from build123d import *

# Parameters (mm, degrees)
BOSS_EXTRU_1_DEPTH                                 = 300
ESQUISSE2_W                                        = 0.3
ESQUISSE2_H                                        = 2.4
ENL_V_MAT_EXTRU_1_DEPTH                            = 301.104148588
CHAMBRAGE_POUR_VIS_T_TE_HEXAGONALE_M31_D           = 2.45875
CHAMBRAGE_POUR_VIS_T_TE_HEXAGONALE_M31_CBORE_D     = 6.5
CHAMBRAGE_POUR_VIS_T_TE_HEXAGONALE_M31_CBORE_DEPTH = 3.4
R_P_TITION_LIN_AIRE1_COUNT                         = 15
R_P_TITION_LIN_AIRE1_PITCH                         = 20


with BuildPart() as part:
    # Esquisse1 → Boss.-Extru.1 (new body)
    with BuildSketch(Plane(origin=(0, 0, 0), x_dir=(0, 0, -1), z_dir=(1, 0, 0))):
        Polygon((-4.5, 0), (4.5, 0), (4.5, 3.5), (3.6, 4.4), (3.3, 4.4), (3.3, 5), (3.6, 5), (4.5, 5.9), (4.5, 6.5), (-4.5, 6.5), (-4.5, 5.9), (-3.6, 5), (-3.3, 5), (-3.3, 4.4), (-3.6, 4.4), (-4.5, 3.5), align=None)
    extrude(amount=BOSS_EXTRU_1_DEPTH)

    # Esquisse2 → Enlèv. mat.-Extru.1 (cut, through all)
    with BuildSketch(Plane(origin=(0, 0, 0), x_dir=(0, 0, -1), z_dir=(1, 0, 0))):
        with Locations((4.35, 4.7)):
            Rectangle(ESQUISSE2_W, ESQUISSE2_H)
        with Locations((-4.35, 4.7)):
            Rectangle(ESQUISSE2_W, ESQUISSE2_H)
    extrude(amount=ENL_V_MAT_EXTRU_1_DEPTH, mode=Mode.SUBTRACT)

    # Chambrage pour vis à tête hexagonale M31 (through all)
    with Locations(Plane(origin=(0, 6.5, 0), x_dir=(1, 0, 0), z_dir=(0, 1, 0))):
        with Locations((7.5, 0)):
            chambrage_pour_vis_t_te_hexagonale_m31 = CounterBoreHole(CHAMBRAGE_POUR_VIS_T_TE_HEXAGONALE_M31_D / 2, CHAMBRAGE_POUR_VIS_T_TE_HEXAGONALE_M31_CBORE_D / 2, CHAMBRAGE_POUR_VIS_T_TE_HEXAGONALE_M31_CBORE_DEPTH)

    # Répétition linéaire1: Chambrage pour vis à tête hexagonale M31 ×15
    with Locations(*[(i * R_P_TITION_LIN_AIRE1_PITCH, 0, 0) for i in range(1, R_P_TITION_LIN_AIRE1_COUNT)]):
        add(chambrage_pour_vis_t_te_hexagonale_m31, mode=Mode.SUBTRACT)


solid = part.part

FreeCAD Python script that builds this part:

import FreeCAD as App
import Part
import Sketcher
from FreeCAD import Vector
Q = App.Units.Quantity

doc = App.newDocument("Part")
params = doc.addObject("Spreadsheet::Sheet", "Params")
for row, (alias, value) in enumerate([
    ("sketch1_height", "9 mm"),
    ("sketch1_width", "3.5 mm"),
    ("sketch1_width2", "0.6 mm"),
    ("sketch1_height2", "0.3 mm"),
    ("pad1_length", "300 mm"),
    ("sketch2_width", "2.4 mm"),
    ("sketch2_height", "0.3 mm"),
    ("hole_diameter", "2.45875 mm"),
    ("hole_cbore_diameter", "6.5 mm"),
    ("hole_cbore_depth", "3.4 mm"),
    ("linearpattern_pitch", "20 mm"),
], start=1):
    params.set(f"A{row}", alias)
    params.set(f"B{row}", "=" + value)
    params.setAlias(f"B{row}", alias)

body = doc.addObject("PartDesign::Body", "Body")

sketch1 = doc.addObject("Sketcher::SketchObject", "Sketch")
body.addObject(sketch1)
sketch1.AttachmentSupport = (doc.YZ_Plane, [""])
sketch1.MapMode = "FlatFace"
sketch1.addGeometry(Part.LineSegment(Vector(0, 4.5, 0), Vector(0, -4.5, 0)), False)
sketch1.addGeometry(Part.LineSegment(Vector(0, -4.5, 0), Vector(3.5, -4.5, 0)), False)
sketch1.addGeometry(Part.LineSegment(Vector(3.5, -4.5, 0), Vector(4.4, -3.6, 0)), False)
sketch1.addGeometry(Part.LineSegment(Vector(4.4, -3.6, 0), Vector(4.4, -3.3, 0)), False)
sketch1.addGeometry(Part.LineSegment(Vector(4.4, -3.3, 0), Vector(5, -3.3, 0)), False)
sketch1.addGeometry(Part.LineSegment(Vector(5, -3.3, 0), Vector(5, -3.6, 0)), False)
sketch1.addGeometry(Part.LineSegment(Vector(5, -3.6, 0), Vector(5.9, -4.5, 0)), False)
sketch1.addGeometry(Part.LineSegment(Vector(5.9, -4.5, 0), Vector(6.5, -4.5, 0)), False)
sketch1.addGeometry(Part.LineSegment(Vector(6.5, -4.5, 0), Vector(6.5, 4.5, 0)), False)
sketch1.addGeometry(Part.LineSegment(Vector(6.5, 4.5, 0), Vector(5.9, 4.5, 0)), False)
sketch1.addGeometry(Part.LineSegment(Vector(5.9, 4.5, 0), Vector(5, 3.6, 0)), False)
sketch1.addGeometry(Part.LineSegment(Vector(5, 3.6, 0), Vector(5, 3.3, 0)), False)
sketch1.addGeometry(Part.LineSegment(Vector(5, 3.3, 0), Vector(4.4, 3.3, 0)), False)
sketch1.addGeometry(Part.LineSegment(Vector(4.4, 3.3, 0), Vector(4.4, 3.6, 0)), False)
sketch1.addGeometry(Part.LineSegment(Vector(4.4, 3.6, 0), Vector(3.5, 4.5, 0)), False)
sketch1.addGeometry(Part.LineSegment(Vector(3.5, 4.5, 0), Vector(0, 4.5, 0)), False)
sketch1.addConstraint(Sketcher.Constraint("Coincident", 0, 2, 1, 1))
sketch1.addConstraint(Sketcher.Constraint("Coincident", 1, 2, 2, 1))
sketch1.addConstraint(Sketcher.Constraint("Coincident", 2, 2, 3, 1))
sketch1.addConstraint(Sketcher.Constraint("Coincident", 3, 2, 4, 1))
sketch1.addConstraint(Sketcher.Constraint("Coincident", 4, 2, 5, 1))
sketch1.addConstraint(Sketcher.Constraint("Coincident", 5, 2, 6, 1))
sketch1.addConstraint(Sketcher.Constraint("Coincident", 6, 2, 7, 1))
sketch1.addConstraint(Sketcher.Constraint("Coincident", 7, 2, 8, 1))
sketch1.addConstraint(Sketcher.Constraint("Coincident", 8, 2, 9, 1))
sketch1.addConstraint(Sketcher.Constraint("Coincident", 9, 2, 10, 1))
sketch1.addConstraint(Sketcher.Constraint("Coincident", 10, 2, 11, 1))
sketch1.addConstraint(Sketcher.Constraint("Coincident", 11, 2, 12, 1))
sketch1.addConstraint(Sketcher.Constraint("Coincident", 12, 2, 13, 1))
sketch1.addConstraint(Sketcher.Constraint("Coincident", 13, 2, 14, 1))
sketch1.addConstraint(Sketcher.Constraint("Coincident", 14, 2, 15, 1))
sketch1.addConstraint(Sketcher.Constraint("Coincident", 15, 2, 0, 1))
sketch1.addConstraint(Sketcher.Constraint("Vertical", 0))
sketch1.addConstraint(Sketcher.Constraint("Horizontal", 1))
sketch1.addConstraint(Sketcher.Constraint("Vertical", 3))
sketch1.addConstraint(Sketcher.Constraint("Horizontal", 4))
sketch1.addConstraint(Sketcher.Constraint("Vertical", 5))
sketch1.addConstraint(Sketcher.Constraint("Horizontal", 7))
sketch1.addConstraint(Sketcher.Constraint("Vertical", 8))
sketch1.addConstraint(Sketcher.Constraint("Horizontal", 9))
sketch1.addConstraint(Sketcher.Constraint("Vertical", 11))
sketch1.addConstraint(Sketcher.Constraint("Horizontal", 12))
sketch1.addConstraint(Sketcher.Constraint("Vertical", 13))
sketch1.addConstraint(Sketcher.Constraint("Horizontal", 15))
sketch1.addConstraint(Sketcher.Constraint("Symmetric", 0, 2, 15, 2, -1, 1))
sketch1.addConstraint(Sketcher.Constraint("Symmetric", 6, 2, 9, 2, -1))
sketch1.addConstraint(Sketcher.Constraint("Symmetric", 5, 2, 10, 2, -1))
sketch1.addConstraint(Sketcher.Constraint("Symmetric", 3, 2, 12, 2, -1))
sketch1.addConstraint(Sketcher.Constraint("Perpendicular", 2, 6))
sketch1.addConstraint(Sketcher.Constraint("Perpendicular", 6, 10))
sketch1.addConstraint(Sketcher.Constraint("Perpendicular", 10, 14))
sketch1.addConstraint(Sketcher.Constraint("Horizontal", 2, 2, 5, 2))
sketch1.addConstraint(Sketcher.Constraint("Horizontal", 1, 2, 6, 2))
sketch1.addConstraint(Sketcher.Constraint("Horizontal", 10, 2, 13, 2))
sketch1.addConstraint(Sketcher.Constraint("Equal", 4, 7))
sketch1.addConstraint(Sketcher.Constraint("DistanceY", 0, 2, 0, 1, Q("9 mm")))
sketch1.addConstraint(Sketcher.Constraint("DistanceX", 1, 1, 1, 2, Q("3.5 mm")))
sketch1.addConstraint(Sketcher.Constraint("DistanceX", 4, 1, 4, 2, Q("0.6 mm")))
sketch1.addConstraint(Sketcher.Constraint("DistanceY", 3, 1, 3, 2, Q("0.3 mm")))
sketch1.addConstraint(Sketcher.Constraint("DistanceX", -1, 1, 4, 2, Q("5 mm")))
sketch1.setExpression("Constraints[39]", "Params.sketch1_height")
sketch1.setExpression("Constraints[40]", "Params.sketch1_width")
sketch1.setExpression("Constraints[41]", "Params.sketch1_width2")
sketch1.setExpression("Constraints[42]", "Params.sketch1_height2")
pad1 = doc.addObject("PartDesign::Pad", "Pad")
body.addObject(pad1)
pad1.Profile = sketch1
pad1.setExpression("Length", "Params.pad1_length")

sketch2 = doc.addObject("Sketcher::SketchObject", "Sketch001")
body.addObject(sketch2)
sketch2.AttachmentSupport = (doc.YZ_Plane, [""])
sketch2.MapMode = "FlatFace"
sketch2.addGeometry(Part.LineSegment(Vector(5.9, -4.2, 0), Vector(3.5, -4.2, 0)), False)
sketch2.addGeometry(Part.LineSegment(Vector(3.5, -4.2, 0), Vector(3.5, -4.5, 0)), False)
sketch2.addGeometry(Part.LineSegment(Vector(3.5, -4.5, 0), Vector(5.9, -4.5, 0)), False)
sketch2.addGeometry(Part.LineSegment(Vector(5.9, -4.5, 0), Vector(5.9, -4.2, 0)), False)
sketch2.addGeometry(Part.LineSegment(Vector(5.9, 4.5, 0), Vector(3.5, 4.5, 0)), False)
sketch2.addGeometry(Part.LineSegment(Vector(3.5, 4.5, 0), Vector(3.5, 4.2, 0)), False)
sketch2.addGeometry(Part.LineSegment(Vector(3.5, 4.2, 0), Vector(5.9, 4.2, 0)), False)
sketch2.addGeometry(Part.LineSegment(Vector(5.9, 4.2, 0), Vector(5.9, 4.5, 0)), False)
sketch2.addConstraint(Sketcher.Constraint("Coincident", 0, 2, 1, 1))
sketch2.addConstraint(Sketcher.Constraint("Coincident", 1, 2, 2, 1))
sketch2.addConstraint(Sketcher.Constraint("Coincident", 2, 2, 3, 1))
sketch2.addConstraint(Sketcher.Constraint("Coincident", 3, 2, 0, 1))
sketch2.addConstraint(Sketcher.Constraint("Coincident", 4, 2, 5, 1))
sketch2.addConstraint(Sketcher.Constraint("Coincident", 5, 2, 6, 1))
sketch2.addConstraint(Sketcher.Constraint("Coincident", 6, 2, 7, 1))
sketch2.addConstraint(Sketcher.Constraint("Coincident", 7, 2, 4, 1))
sketch2.addConstraint(Sketcher.Constraint("Horizontal", 0))
sketch2.addConstraint(Sketcher.Constraint("Vertical", 1))
sketch2.addConstraint(Sketcher.Constraint("Horizontal", 2))
sketch2.addConstraint(Sketcher.Constraint("Vertical", 3))
sketch2.addConstraint(Sketcher.Constraint("Horizontal", 4))
sketch2.addConstraint(Sketcher.Constraint("Vertical", 5))
sketch2.addConstraint(Sketcher.Constraint("Horizontal", 6))
sketch2.addConstraint(Sketcher.Constraint("Vertical", 7))
sketch2.addConstraint(Sketcher.Constraint("Symmetric", 1, 2, 4, 2, -1))
sketch2.addConstraint(Sketcher.Constraint("Symmetric", 3, 2, 6, 2, -1))
sketch2.addConstraint(Sketcher.Constraint("DistanceX", 0, 2, 0, 1, Q("2.4 mm")))
sketch2.addConstraint(Sketcher.Constraint("DistanceY", 1, 2, 1, 1, Q("0.3 mm")))
sketch2.addConstraint(Sketcher.Constraint("DistanceY", 1, 2, 4, 2, Q("9 mm")))
sketch2.addConstraint(Sketcher.Constraint("DistanceX", -1, 1, 0, 2, Q("3.5 mm")))
sketch2.setExpression("Constraints[18]", "Params.sketch2_width")
sketch2.setExpression("Constraints[19]", "Params.sketch2_height")
pocket1 = doc.addObject("PartDesign::Pocket", "Pocket")
body.addObject(pocket1)
pocket1.Profile = sketch2
pocket1.Type = "ThroughAll"
pocket1.Reversed = True

sketch3 = doc.addObject("Sketcher::SketchObject", "Sketch002")
body.addObject(sketch3)
sketch3.AttachmentSupport = (doc.XZ_Plane, [""])
sketch3.MapMode = "FlatFace"
sketch3.AttachmentOffset = App.Placement(Vector(0, 0, -6.5), App.Rotation())
sketch3.addGeometry(Part.Circle(Vector(7.5, 0, 0), Vector(0, 0, 1), 1.229375), False)
sketch3.addConstraint(Sketcher.Constraint("PointOnObject", 0, 3, -1))
sketch3.addConstraint(Sketcher.Constraint("DistanceX", -1, 1, 0, 3, Q("7.5 mm")))
sketch3.addConstraint(Sketcher.Constraint("Diameter", 0, Q("2.45875 mm")))
doc.recompute()
hole = doc.addObject("PartDesign::Hole", "Hole")
body.addObject(hole)
hole.Profile = sketch3
hole.ThreadType = "None"
hole.setExpression("Diameter", "Params.hole_diameter")
hole.DepthType = "ThroughAll"
hole.HoleCutType = "Counterbore"
hole.setExpression("HoleCutDiameter", "Params.hole_cbore_diameter")
hole.setExpression("HoleCutDepth", "Params.hole_cbore_depth")
hole.Reversed = True
doc.recompute()

linearpattern = doc.addObject("PartDesign::LinearPattern", "LinearPattern")
body.addObject(linearpattern)
linearpattern.Originals = [hole]
linearpattern.Direction = (doc.X_Axis, [""])
linearpattern.Mode = "offset"
linearpattern.setExpression("Offset", "Params.linearpattern_pitch")
linearpattern.Occurrences = 15
body.Tip = linearpattern

doc.recompute()
